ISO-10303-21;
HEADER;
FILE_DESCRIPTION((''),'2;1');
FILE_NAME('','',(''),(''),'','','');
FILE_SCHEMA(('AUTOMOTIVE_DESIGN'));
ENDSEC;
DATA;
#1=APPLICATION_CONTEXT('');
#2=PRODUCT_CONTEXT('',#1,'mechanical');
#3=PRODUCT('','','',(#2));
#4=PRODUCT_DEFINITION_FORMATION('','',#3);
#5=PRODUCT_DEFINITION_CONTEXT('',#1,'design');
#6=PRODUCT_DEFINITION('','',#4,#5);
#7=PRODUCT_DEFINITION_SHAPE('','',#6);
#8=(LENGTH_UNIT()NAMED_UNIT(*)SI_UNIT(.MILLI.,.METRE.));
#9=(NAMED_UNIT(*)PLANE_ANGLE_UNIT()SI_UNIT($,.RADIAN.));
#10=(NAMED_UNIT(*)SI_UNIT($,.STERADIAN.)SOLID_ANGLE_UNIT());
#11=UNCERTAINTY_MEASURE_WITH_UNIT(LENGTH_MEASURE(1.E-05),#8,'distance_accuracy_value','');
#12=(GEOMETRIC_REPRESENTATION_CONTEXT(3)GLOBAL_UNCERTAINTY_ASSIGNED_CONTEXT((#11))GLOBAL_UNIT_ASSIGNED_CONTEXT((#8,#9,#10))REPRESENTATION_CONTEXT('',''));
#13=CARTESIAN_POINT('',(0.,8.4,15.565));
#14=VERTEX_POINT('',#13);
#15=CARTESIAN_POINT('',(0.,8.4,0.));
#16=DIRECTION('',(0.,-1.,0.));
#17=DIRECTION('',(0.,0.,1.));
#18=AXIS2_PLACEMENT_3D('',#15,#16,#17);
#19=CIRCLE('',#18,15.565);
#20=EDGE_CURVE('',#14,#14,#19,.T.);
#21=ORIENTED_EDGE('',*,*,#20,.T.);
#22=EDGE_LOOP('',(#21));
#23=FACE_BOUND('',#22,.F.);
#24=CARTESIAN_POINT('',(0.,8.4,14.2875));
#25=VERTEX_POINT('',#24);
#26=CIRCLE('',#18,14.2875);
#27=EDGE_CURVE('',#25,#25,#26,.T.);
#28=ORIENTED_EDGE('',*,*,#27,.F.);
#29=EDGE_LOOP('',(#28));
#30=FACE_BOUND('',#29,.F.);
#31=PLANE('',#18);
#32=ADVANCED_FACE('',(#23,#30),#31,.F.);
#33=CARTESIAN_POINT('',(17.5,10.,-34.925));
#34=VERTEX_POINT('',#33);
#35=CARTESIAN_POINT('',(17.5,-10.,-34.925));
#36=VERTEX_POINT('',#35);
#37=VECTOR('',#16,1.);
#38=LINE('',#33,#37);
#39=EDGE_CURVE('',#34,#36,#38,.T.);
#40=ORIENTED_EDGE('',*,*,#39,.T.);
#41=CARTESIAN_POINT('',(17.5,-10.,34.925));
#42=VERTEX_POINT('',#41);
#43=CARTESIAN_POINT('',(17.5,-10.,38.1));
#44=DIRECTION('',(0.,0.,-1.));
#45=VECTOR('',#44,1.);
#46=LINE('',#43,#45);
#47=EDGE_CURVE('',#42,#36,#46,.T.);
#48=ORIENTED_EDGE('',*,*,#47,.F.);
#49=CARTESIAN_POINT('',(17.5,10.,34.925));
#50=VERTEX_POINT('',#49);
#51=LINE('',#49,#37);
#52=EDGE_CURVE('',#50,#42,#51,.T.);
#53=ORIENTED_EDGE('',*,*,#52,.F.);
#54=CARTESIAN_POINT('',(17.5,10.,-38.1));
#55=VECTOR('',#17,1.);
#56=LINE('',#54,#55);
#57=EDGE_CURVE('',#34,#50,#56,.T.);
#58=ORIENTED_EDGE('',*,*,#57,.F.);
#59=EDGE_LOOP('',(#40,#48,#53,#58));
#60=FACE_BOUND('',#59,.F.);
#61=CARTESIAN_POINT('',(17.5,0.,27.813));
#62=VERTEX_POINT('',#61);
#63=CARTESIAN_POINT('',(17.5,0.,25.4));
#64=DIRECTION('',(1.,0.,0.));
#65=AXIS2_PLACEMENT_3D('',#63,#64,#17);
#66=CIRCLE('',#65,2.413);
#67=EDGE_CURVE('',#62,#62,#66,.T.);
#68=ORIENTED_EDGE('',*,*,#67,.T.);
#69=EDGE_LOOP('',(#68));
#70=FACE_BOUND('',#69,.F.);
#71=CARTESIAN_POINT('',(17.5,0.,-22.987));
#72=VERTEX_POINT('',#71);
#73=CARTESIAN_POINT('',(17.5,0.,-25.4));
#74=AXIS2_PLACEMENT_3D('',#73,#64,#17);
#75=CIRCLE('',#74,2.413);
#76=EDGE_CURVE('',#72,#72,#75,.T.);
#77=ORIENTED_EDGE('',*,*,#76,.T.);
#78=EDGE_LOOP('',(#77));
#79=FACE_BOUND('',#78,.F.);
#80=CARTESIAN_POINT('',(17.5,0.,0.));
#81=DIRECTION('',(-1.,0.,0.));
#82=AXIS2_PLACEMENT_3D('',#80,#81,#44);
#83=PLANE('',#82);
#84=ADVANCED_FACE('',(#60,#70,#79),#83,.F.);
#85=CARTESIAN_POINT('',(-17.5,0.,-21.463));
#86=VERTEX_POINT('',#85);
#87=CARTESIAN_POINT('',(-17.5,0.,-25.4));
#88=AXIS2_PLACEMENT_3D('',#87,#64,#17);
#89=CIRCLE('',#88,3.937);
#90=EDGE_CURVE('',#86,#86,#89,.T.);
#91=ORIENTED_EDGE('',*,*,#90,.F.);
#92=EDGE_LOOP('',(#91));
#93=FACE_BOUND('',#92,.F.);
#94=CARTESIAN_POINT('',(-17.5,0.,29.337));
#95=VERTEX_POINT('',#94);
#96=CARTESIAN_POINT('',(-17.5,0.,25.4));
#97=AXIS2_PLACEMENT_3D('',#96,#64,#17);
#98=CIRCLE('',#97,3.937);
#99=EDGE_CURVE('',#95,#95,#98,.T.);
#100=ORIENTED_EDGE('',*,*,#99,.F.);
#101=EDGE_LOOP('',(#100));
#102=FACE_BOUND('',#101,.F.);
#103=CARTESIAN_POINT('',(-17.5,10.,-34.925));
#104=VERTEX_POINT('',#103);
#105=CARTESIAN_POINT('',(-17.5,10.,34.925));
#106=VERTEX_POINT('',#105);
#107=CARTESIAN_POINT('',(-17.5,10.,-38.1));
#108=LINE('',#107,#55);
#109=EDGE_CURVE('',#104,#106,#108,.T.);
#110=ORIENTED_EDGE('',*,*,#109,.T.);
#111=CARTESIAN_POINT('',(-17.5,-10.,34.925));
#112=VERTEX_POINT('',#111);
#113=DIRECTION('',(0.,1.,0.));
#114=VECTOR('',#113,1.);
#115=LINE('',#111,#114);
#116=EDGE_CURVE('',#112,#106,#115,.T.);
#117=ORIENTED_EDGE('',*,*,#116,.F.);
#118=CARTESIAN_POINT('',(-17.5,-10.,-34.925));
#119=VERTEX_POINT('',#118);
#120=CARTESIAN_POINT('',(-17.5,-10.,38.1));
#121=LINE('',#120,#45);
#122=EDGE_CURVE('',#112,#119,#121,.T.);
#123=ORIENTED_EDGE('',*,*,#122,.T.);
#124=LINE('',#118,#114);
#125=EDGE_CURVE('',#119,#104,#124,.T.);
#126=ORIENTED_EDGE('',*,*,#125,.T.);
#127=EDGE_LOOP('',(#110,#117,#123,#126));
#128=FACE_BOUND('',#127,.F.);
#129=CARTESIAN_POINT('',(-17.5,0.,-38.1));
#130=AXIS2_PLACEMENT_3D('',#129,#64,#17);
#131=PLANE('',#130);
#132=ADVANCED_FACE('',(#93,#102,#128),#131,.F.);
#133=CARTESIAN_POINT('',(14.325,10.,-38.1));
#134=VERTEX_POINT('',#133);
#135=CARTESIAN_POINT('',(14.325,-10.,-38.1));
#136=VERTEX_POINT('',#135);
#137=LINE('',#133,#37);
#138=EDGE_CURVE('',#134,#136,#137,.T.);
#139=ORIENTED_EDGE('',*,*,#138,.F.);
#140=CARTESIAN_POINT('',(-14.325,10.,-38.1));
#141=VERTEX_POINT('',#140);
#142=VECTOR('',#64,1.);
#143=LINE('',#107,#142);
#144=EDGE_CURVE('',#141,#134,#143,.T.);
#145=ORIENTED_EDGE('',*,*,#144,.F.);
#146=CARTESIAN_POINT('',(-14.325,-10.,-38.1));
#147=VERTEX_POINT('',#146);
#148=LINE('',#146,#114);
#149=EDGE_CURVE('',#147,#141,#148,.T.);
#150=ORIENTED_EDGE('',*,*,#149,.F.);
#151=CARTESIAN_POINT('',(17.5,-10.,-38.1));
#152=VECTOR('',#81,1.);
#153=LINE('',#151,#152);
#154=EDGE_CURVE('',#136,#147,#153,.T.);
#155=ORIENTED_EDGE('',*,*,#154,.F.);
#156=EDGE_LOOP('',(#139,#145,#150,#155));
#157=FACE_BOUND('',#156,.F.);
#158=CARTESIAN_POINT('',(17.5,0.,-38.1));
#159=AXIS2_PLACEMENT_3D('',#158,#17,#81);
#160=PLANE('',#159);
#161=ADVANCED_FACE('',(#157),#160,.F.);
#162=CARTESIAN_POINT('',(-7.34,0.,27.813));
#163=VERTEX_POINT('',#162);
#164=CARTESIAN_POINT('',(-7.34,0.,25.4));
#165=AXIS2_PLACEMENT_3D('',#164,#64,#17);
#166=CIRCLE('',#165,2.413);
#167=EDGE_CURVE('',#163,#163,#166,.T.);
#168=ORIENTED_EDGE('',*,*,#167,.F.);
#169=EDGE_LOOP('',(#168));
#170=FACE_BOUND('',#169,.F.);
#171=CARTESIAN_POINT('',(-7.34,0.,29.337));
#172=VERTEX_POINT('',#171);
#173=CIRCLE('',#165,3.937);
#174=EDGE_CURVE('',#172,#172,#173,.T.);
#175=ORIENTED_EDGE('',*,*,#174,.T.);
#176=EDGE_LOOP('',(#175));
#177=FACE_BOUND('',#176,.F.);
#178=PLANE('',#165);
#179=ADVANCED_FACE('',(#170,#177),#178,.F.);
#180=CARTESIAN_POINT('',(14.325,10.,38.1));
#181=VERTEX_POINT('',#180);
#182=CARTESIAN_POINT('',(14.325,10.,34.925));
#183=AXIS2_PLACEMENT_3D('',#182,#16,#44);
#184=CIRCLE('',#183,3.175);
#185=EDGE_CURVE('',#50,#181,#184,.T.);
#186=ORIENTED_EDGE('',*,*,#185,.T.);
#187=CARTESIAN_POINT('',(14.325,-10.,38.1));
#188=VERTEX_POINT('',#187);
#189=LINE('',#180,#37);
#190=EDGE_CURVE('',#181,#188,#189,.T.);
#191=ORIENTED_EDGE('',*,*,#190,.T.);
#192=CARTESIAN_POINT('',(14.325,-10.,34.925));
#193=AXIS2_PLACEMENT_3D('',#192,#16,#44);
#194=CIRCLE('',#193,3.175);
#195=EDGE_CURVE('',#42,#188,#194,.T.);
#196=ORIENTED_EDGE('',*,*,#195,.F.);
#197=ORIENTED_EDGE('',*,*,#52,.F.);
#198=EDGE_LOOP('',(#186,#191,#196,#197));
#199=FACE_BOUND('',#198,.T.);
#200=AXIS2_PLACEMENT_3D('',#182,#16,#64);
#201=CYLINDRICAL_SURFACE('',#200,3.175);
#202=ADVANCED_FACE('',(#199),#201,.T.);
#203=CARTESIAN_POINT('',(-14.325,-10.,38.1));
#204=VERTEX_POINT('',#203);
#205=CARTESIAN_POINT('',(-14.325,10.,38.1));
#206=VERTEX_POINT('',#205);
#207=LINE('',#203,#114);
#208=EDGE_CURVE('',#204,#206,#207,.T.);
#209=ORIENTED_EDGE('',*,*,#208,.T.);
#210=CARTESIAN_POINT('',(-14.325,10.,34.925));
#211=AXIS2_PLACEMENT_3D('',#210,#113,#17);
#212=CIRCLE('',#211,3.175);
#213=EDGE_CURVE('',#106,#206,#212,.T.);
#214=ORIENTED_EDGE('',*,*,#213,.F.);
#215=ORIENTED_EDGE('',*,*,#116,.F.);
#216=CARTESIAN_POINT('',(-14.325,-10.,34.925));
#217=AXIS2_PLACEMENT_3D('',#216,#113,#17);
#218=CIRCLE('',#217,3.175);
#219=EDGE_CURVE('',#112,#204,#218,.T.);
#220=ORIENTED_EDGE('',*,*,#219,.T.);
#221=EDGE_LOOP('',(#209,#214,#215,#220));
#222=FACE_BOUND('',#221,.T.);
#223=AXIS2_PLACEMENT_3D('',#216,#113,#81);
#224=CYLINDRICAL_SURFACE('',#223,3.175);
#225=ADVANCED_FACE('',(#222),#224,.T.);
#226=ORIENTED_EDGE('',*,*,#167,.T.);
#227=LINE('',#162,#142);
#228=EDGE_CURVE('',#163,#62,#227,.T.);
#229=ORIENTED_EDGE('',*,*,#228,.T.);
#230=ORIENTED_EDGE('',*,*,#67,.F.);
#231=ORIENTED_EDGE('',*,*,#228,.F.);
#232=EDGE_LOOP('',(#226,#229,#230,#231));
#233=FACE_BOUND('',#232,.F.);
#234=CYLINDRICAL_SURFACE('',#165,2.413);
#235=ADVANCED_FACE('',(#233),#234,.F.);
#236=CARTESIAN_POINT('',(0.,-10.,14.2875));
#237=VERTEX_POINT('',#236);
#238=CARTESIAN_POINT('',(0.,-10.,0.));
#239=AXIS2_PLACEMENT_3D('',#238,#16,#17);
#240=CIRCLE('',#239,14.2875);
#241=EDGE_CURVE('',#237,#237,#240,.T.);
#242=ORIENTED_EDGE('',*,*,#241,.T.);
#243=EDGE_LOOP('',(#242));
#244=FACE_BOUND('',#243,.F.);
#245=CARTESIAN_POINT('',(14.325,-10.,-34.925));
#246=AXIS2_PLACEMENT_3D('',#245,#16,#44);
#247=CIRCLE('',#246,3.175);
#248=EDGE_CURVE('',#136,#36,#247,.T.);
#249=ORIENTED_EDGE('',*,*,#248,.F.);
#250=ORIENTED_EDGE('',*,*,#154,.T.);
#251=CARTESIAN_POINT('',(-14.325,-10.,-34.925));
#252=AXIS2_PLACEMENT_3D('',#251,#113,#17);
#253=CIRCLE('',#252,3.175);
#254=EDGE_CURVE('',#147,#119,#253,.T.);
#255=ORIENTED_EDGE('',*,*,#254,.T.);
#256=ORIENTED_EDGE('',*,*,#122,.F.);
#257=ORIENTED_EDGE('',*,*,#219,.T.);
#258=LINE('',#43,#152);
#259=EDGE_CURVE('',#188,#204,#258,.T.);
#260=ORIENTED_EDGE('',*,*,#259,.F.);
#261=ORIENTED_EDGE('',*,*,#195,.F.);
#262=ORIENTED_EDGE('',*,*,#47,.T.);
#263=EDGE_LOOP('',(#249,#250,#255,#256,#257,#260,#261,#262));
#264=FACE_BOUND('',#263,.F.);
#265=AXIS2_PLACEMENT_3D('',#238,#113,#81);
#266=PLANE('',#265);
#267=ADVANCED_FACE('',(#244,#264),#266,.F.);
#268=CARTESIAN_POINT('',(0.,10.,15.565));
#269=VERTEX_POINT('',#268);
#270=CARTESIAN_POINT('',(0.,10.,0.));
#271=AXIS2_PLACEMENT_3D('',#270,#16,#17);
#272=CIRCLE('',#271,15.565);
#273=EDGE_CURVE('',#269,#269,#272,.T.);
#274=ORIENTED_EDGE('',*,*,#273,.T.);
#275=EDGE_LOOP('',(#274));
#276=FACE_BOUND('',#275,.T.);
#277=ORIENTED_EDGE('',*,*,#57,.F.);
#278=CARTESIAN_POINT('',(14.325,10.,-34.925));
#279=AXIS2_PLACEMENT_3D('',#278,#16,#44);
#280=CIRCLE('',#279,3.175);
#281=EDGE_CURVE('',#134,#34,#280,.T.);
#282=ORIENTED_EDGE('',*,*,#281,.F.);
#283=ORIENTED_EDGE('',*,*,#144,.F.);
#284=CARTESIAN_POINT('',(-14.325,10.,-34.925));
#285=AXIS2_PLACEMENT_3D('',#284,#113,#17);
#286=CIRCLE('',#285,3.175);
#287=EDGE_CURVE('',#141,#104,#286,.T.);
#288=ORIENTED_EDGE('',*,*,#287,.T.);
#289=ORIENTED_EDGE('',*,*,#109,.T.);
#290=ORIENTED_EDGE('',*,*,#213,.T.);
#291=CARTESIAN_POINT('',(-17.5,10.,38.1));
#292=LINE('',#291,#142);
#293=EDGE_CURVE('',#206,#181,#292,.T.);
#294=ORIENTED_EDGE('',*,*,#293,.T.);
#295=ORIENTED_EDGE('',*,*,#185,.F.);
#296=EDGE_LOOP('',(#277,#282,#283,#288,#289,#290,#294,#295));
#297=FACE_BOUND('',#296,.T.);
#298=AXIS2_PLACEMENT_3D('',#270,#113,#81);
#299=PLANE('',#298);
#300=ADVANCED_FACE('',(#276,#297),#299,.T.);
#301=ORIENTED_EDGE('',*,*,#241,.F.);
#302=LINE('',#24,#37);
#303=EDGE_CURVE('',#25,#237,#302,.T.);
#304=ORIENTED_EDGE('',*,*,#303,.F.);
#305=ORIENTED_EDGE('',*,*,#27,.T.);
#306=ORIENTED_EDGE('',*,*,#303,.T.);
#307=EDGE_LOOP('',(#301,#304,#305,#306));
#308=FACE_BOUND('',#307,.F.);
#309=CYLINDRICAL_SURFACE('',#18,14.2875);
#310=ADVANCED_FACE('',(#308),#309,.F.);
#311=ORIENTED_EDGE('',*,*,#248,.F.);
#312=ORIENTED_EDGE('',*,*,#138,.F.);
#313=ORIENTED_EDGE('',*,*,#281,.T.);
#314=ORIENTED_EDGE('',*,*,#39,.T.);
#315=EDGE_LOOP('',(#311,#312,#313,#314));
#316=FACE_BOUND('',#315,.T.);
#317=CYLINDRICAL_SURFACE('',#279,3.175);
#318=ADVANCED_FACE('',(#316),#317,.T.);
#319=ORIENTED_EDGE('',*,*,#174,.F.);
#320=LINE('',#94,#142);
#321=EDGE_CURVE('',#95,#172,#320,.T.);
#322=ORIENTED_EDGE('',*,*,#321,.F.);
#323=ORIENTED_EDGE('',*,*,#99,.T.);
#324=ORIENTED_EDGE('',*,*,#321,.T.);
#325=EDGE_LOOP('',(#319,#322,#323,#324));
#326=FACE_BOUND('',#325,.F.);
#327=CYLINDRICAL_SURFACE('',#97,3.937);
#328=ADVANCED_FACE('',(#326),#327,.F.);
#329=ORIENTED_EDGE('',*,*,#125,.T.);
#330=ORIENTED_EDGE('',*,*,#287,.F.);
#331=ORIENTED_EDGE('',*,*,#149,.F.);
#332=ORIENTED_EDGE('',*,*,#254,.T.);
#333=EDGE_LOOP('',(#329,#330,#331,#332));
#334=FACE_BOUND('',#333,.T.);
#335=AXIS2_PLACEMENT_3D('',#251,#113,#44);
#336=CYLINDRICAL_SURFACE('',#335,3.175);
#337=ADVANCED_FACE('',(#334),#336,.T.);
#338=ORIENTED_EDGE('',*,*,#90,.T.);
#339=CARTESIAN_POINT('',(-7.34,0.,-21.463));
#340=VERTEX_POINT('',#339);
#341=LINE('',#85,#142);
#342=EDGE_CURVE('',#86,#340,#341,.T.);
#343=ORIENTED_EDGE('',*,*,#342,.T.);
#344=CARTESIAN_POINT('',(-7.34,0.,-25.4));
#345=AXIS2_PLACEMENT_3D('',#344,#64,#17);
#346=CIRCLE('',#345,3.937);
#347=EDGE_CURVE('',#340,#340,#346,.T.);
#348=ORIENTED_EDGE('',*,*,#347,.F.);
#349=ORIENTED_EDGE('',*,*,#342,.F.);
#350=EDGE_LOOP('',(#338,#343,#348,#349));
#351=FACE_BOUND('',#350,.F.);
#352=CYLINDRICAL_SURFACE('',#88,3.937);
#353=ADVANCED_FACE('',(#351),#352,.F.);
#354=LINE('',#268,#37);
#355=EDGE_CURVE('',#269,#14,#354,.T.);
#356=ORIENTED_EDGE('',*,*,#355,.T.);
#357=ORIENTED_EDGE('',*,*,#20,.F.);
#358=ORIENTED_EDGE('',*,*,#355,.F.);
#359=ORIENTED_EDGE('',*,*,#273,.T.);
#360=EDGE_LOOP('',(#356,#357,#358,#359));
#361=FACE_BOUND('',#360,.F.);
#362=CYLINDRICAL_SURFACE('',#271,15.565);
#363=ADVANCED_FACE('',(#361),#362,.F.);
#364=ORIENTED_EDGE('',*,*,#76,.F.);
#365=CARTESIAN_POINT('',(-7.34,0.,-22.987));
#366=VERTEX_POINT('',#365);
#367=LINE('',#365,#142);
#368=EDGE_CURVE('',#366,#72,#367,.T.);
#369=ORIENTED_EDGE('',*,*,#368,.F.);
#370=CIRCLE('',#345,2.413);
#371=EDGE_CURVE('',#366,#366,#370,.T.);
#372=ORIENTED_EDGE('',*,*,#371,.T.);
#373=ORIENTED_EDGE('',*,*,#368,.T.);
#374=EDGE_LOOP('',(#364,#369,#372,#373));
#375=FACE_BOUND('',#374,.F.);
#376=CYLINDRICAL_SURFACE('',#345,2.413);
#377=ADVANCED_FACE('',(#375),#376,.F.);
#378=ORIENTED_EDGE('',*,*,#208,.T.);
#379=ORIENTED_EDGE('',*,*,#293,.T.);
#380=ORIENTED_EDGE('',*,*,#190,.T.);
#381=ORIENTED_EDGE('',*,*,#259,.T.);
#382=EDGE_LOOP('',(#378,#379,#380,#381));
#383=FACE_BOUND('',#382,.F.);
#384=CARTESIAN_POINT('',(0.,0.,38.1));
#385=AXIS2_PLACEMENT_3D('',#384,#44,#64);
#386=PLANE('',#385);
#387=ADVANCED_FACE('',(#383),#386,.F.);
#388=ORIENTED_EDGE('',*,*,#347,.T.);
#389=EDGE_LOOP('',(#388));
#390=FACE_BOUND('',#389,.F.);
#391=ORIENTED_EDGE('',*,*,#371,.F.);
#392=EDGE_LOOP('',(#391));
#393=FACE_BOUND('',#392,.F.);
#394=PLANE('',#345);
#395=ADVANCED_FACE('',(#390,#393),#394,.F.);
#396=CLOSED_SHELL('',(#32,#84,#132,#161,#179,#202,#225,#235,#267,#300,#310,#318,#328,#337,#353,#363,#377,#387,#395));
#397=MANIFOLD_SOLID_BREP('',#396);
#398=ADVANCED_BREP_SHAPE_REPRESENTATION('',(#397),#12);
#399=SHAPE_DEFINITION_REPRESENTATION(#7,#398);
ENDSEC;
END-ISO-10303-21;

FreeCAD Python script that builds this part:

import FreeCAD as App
import Part
import Sketcher
Q = App.Units.Quantity


def edges_at(feature, points):
    """Names of the edges that pass closest to the given points."""
    edges = feature.Shape.Edges
    near = lambda p: min(range(len(edges)), key=lambda i: edges[i].distToShape(Part.Vertex(*p))[0])
    return sorted({f"Edge{near(p) + 1}" for p in points})

doc = App.newDocument("Part")
body = doc.addObject("PartDesign::Body", "Body")

sketch1 = body.newObject("Sketcher::SketchObject", "Sketch")
sketch1.AttachmentSupport = (doc.getObject("XZ_Plane"), [""])
sketch1.MapMode = "FlatFace"
sketch1.addGeometry([
    Part.LineSegment(App.Vector(18, -38, 0), App.Vector(-18, -38, 0)),
    Part.LineSegment(App.Vector(-18, -38, 0), App.Vector(-18, 38, 0)),
    Part.LineSegment(App.Vector(-18, 38, 0), App.Vector(18, 38, 0)),
    Part.LineSegment(App.Vector(18, 38, 0), App.Vector(18, -38, 0)),
], False)
sketch1.addConstraint([
    Sketcher.Constraint("Coincident", 0, 2, 1, 1),
    Sketcher.Constraint("Coincident", 1, 2, 2, 1),
    Sketcher.Constraint("Coincident", 2, 2, 3, 1),
    Sketcher.Constraint("Coincident", 3, 2, 0, 1),
    Sketcher.Constraint("Horizontal", 0),
    Sketcher.Constraint("Vertical", 1),
    Sketcher.Constraint("Horizontal", 2),
    Sketcher.Constraint("Vertical", 3),
    Sketcher.Constraint("Symmetric", 0, 2, 2, 2, -1, 1),
    Sketcher.Constraint("DistanceY", 1, 1, 1, 2, Q("3 in")),
    Sketcher.Constraint("DistanceX", 0, 2, 0, 1, Q("35 mm")),
])
pad1 = body.newObject("PartDesign::Pad", "Pad")
pad1.Profile = sketch1
pad1.Length = Q("0.7874016 in")
pad1.Midplane = True

sketch2 = body.newObject("Sketcher::SketchObject", "Sketch001")
sketch2.AttachmentSupport = (doc.getObject("XZ_Plane"), [""])
sketch2.MapMode = "FlatFace"
sketch2.AttachmentOffset = App.Placement(App.Vector(0, 0, -0.3937008 * 25.4), App.Rotation())
sketch2.addGeometry(Part.Circle(App.Vector(0, 0, 0), App.Vector(0, 0, 1), 14), False)
sketch2.addConstraint([
    Sketcher.Constraint("Coincident", 0, 3, -1, 1),
    Sketcher.Constraint("Diameter", 0, Q("1.125 in")),
])
doc.recompute()
hole = body.newObject("PartDesign::Hole", "Hole")
hole.Profile = sketch2
hole.ThreadType = "None"
hole.Diameter = Q("1.125 in")
hole.DepthType = "ThroughAll"
hole.HoleCutType = "Counterbore"
hole.HoleCutDiameter = Q("1.2255906 in")
hole.HoleCutDepth = Q("0.0629921 in")
hole.Reversed = True
doc.recompute()

fillet = body.newObject("PartDesign::Fillet", "Fillet")
fillet.Base = (hole, edges_at(hole, [
    (17.5, 0, 38.1),
    (17.5, 0, -38.1),
    (-17.5, 0, 38.1),
    (-17.5, 0, -38.1),
]))
fillet.Radius = Q("0.125 in")

sketch3 = body.newObject("Sketcher::SketchObject", "Sketch002")
sketch3.AttachmentSupport = (doc.getObject("YZ_Plane"), [""])
sketch3.MapMode = "FlatFace"
sketch3.AttachmentOffset = App.Placement(App.Vector(0, 0, -17.5), App.Rotation())
sketch3.addGeometry([
    Part.Circle(App.Vector(0, -25.4, 0), App.Vector(0, 0, 1), 2.4),
    Part.Circle(App.Vector(0, 25.4, 0), App.Vector(0, 0, 1), 2.4),
], False)
sketch3.addConstraint([
    Sketcher.Constraint("Equal", 0, 1),
    Sketcher.Constraint("Symmetric", 0, 3, 1, 3, -1, 1),
    Sketcher.Constraint("PointOnObject", 0, 3, -2),
    Sketcher.Constraint("Diameter", 0, Q("0.19 in")),
    Sketcher.Constraint("DistanceY", 0, 3, -1, 1, Q("1 in")),
])
doc.recompute()
hole2 = body.newObject("PartDesign::Hole", "Hole001")
hole2.Profile = sketch3
hole2.ThreadType = "None"
hole2.Diameter = Q("0.19 in")
hole2.DepthType = "ThroughAll"
hole2.HoleCutType = "Counterbore"
hole2.HoleCutDiameter = Q("0.31 in")
hole2.HoleCutDepth = Q("0.4 in")
hole2.Reversed = True

doc.recompute()
